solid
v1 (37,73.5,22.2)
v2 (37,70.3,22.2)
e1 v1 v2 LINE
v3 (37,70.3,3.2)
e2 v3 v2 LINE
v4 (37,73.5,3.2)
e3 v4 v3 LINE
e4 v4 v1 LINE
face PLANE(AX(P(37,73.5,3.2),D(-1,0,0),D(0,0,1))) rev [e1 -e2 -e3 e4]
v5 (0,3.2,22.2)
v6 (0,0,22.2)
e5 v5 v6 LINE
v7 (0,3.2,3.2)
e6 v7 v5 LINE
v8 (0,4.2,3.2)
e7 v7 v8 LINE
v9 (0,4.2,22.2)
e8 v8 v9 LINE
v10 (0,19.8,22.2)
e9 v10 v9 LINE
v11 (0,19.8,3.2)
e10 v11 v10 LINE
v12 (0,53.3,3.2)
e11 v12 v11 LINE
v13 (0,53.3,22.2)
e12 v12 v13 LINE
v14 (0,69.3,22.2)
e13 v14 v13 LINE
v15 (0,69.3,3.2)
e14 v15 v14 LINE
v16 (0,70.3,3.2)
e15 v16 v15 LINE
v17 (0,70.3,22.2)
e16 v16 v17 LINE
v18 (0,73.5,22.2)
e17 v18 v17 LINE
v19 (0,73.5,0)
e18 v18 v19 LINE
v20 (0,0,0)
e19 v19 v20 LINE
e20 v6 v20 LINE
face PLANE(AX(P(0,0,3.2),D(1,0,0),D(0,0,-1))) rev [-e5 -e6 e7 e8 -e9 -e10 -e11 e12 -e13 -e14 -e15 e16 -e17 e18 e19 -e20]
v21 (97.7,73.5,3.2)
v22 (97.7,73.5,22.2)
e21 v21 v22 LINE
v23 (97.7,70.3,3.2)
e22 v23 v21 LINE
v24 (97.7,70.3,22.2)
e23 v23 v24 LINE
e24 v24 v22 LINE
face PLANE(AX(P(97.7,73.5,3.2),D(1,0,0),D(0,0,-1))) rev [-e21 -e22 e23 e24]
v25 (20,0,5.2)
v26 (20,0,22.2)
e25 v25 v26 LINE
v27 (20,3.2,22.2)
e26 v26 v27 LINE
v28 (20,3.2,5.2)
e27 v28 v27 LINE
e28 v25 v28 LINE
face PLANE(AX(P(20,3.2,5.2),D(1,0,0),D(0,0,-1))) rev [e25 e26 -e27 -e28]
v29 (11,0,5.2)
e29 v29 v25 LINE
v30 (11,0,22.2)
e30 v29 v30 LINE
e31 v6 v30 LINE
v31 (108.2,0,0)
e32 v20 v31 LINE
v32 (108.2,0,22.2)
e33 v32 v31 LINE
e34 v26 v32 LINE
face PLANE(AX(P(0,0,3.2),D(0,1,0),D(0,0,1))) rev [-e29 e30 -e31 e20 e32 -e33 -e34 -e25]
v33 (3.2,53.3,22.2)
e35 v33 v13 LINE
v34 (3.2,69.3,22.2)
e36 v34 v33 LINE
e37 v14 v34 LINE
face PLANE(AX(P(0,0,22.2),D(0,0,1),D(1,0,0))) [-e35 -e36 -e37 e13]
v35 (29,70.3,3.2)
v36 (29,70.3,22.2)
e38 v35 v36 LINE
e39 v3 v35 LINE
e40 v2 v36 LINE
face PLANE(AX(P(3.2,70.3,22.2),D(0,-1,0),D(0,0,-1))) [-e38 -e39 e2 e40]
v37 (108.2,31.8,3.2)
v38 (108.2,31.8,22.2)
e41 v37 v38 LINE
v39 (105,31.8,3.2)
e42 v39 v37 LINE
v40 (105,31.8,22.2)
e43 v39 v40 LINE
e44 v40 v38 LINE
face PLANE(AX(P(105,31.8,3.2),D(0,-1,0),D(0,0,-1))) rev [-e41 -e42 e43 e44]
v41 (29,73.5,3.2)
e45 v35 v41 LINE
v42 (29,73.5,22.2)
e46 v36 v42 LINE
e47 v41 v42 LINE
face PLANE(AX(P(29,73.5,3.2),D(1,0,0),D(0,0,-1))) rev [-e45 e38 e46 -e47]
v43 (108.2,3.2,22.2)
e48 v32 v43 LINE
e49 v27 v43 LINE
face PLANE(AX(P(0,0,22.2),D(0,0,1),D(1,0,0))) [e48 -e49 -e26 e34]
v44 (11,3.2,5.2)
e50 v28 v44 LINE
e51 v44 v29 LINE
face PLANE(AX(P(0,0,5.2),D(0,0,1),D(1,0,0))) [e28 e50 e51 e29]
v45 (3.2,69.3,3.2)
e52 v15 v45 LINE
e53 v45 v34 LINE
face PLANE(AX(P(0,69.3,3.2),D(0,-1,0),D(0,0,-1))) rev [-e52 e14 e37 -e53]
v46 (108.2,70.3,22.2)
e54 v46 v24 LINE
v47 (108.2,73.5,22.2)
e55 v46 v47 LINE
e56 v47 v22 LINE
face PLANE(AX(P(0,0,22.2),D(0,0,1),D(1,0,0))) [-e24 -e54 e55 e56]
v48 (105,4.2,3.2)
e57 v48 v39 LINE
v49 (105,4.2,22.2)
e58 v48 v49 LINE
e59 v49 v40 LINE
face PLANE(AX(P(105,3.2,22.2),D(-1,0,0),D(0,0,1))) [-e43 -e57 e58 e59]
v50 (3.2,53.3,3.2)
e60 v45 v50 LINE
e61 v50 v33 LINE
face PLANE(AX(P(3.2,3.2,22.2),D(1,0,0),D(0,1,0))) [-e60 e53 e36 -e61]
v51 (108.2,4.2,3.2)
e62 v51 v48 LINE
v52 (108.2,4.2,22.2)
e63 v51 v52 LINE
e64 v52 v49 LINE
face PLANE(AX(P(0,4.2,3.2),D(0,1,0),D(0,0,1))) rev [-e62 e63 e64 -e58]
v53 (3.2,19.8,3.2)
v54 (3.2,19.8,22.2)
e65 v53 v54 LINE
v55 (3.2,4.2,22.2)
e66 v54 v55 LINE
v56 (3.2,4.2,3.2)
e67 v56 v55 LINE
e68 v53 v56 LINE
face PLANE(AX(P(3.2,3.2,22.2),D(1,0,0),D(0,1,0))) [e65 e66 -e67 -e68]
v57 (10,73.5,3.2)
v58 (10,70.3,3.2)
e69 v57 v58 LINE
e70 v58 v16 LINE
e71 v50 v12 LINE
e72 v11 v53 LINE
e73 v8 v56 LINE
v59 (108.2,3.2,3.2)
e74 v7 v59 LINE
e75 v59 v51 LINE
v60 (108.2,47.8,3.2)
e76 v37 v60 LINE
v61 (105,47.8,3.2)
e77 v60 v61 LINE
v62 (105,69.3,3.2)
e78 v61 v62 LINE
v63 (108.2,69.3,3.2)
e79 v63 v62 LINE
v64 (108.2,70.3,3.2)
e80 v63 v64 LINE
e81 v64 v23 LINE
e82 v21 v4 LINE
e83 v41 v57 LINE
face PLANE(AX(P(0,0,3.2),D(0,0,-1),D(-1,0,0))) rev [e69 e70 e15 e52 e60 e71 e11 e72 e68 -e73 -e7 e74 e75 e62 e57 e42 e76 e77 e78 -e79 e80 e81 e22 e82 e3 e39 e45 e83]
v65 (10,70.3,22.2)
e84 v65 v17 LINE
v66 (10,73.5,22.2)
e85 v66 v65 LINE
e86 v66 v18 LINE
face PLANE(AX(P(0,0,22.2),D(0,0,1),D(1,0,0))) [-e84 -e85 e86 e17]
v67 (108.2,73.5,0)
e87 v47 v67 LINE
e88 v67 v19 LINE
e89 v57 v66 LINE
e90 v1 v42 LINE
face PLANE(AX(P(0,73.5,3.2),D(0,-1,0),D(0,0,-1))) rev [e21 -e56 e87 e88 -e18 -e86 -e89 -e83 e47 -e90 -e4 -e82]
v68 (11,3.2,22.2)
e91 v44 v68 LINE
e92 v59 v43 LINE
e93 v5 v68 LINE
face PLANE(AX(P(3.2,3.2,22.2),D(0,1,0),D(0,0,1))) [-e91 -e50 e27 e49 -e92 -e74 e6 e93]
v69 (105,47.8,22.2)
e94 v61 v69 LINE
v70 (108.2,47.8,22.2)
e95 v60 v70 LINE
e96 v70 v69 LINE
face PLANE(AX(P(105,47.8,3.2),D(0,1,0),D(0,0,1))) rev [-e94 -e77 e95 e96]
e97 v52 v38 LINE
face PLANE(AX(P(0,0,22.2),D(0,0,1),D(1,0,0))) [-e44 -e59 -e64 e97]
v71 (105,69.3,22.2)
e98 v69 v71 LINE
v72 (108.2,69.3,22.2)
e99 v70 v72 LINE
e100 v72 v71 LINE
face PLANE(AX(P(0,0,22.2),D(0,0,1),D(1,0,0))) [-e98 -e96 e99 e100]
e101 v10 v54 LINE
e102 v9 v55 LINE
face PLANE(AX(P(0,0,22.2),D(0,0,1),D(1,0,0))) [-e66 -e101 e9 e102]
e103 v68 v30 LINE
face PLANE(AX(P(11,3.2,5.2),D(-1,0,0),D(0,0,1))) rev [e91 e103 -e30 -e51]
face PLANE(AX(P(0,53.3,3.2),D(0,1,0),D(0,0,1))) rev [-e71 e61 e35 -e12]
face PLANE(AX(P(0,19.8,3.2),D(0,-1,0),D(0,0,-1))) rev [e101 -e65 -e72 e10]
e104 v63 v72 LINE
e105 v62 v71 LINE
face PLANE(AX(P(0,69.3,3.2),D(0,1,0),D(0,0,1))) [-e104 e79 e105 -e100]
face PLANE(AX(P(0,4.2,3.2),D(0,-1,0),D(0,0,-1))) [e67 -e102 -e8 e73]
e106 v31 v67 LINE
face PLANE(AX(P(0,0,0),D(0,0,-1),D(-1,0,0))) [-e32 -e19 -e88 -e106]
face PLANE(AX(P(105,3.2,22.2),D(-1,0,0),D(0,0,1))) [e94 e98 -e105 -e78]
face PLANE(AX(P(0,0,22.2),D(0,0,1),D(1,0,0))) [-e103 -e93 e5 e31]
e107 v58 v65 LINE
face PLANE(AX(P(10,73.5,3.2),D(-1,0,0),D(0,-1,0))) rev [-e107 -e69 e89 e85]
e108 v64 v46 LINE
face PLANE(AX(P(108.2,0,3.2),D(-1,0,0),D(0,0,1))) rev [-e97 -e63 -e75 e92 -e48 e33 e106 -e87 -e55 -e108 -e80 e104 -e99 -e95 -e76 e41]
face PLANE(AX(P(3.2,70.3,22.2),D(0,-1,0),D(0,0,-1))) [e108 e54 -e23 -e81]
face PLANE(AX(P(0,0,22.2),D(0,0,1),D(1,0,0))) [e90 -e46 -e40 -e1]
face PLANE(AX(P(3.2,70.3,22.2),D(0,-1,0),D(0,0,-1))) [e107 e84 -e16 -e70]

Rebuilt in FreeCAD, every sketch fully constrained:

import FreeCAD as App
import Part
import Sketcher

V = App.Vector


def add_polygon(sketch, points):
    """Adds a closed chain of lines whose ends are joined by coincident constraints."""
    first, n = sketch.GeometryCount, len(points)
    for a, b in zip(points, points[1:] + points[:1]):
        sketch.addGeometry(Part.LineSegment(App.Vector(*a, 0), App.Vector(*b, 0)), False)
    for i in range(n):
        sketch.addConstraint(Sketcher.Constraint("Coincident", first + i, 2, first + (i + 1) % n, 1))

doc = App.newDocument("Part")
body = doc.addObject("PartDesign::Body", "Body")

# Sketch on XY plane
sketch1 = body.newObject("Sketcher::SketchObject", "Sketch")
sketch1.AttachmentSupport = (doc.getObject("XY_Plane"), [""])
sketch1.MapMode = "FlatFace"
add_polygon(sketch1, [(0, 74), (0, 0), (108, 0), (108, 74)])  # lines 0-3
sketch1.addConstraint(Sketcher.Constraint("Vertical", 0))
sketch1.addConstraint(Sketcher.Constraint("Horizontal", 1))
sketch1.addConstraint(Sketcher.Constraint("Vertical", 2))
sketch1.addConstraint(Sketcher.Constraint("Horizontal", 3))
sketch1.addConstraint(Sketcher.Constraint("Coincident", 0, 2, -1, 1))
sketch1.addConstraint(Sketcher.Constraint("DistanceX", 1, 1, 1, 2, 108.2))
sketch1.addConstraint(Sketcher.Constraint("DistanceY", 0, 2, 0, 1, 73.5))
pad1 = body.newObject("PartDesign::Pad", "Pad")
pad1.Profile = sketch1
pad1.Length = 3.2

# Sketch on XY plane
sketch2 = body.newObject("Sketcher::SketchObject", "Sketch001")
sketch2.AttachmentSupport = (doc.getObject("XY_Plane"), [""])
sketch2.MapMode = "FlatFace"
sketch2.AttachmentOffset = App.Placement(V(0, 0, 3.2), App.Rotation())
add_polygon(sketch2, [(0, 74), (0, 0), (108, 0), (108, 74)])  # lines 0-3
add_polygon(sketch2, [(105, 3), (3, 3), (3, 70), (105, 70)])  # lines 4-7
sketch2.addConstraint(Sketcher.Constraint("Vertical", 0))
sketch2.addConstraint(Sketcher.Constraint("Horizontal", 1))
sketch2.addConstraint(Sketcher.Constraint("Vertical", 2))
sketch2.addConstraint(Sketcher.Constraint("Horizontal", 3))
sketch2.addConstraint(Sketcher.Constraint("Horizontal", 4))
sketch2.addConstraint(Sketcher.Constraint("Vertical", 5))
sketch2.addConstraint(Sketcher.Constraint("Horizontal", 6))
sketch2.addConstraint(Sketcher.Constraint("Vertical", 7))
sketch2.addConstraint(Sketcher.Constraint("Coincident", 0, 2, -1, 1))
sketch2.addConstraint(Sketcher.Constraint("DistanceX", 1, 1, 1, 2, 108.2))
sketch2.addConstraint(Sketcher.Constraint("DistanceX", 4, 2, 4, 1, 101.8))
sketch2.addConstraint(Sketcher.Constraint("DistanceY", 0, 2, 0, 1, 73.5))
sketch2.addConstraint(Sketcher.Constraint("DistanceY", 5, 1, 5, 2, 67.1))
sketch2.addConstraint(Sketcher.Constraint("DistanceX", -1, 1, 6, 2, 105.0))
sketch2.addConstraint(Sketcher.Constraint("DistanceY", -1, 1, 4, 2, 3.2))
pad2 = body.newObject("PartDesign::Pad", "Pad001")
pad2.Profile = sketch2
pad2.Length = 19

# Sketch on XY plane
sketch3 = body.newObject("Sketcher::SketchObject", "Sketch002")
sketch3.AttachmentSupport = (doc.getObject("XY_Plane"), [""])
sketch3.MapMode = "FlatFace"
sketch3.AttachmentOffset = App.Placement(V(0, 0, 22.2), App.Rotation())
add_polygon(sketch3, [(0, 70.3), (0, 69.3), (3.2, 69.3), (3.2, 70.3)])  # lines 0-3
add_polygon(sketch3, [(105, 70.3), (105, 69.3), (108.2, 69.3), (108.2, 70.3)])  # lines 4-7
add_polygon(sketch3, [(105, 4.2), (105, 3.2), (108.2, 3.2), (108.2, 4.2)])  # lines 8-11
add_polygon(sketch3, [(0, 4.2), (0, 3.2), (3.2, 3.2), (3.2, 4.2)])  # lines 12-15
sketch3.addConstraint(Sketcher.Constraint("Vertical", 0))
sketch3.addConstraint(Sketcher.Constraint("Horizontal", 1))
sketch3.addConstraint(Sketcher.Constraint("Vertical", 2))
sketch3.addConstraint(Sketcher.Constraint("Horizontal", 3))
sketch3.addConstraint(Sketcher.Constraint("Vertical", 4))
sketch3.addConstraint(Sketcher.Constraint("Horizontal", 5))
sketch3.addConstraint(Sketcher.Constraint("Vertical", 6))
sketch3.addConstraint(Sketcher.Constraint("Horizontal", 7))
sketch3.addConstraint(Sketcher.Constraint("Vertical", 8))
sketch3.addConstraint(Sketcher.Constraint("Horizontal", 9))
sketch3.addConstraint(Sketcher.Constraint("Vertical", 10))
sketch3.addConstraint(Sketcher.Constraint("Horizontal", 11))
sketch3.addConstraint(Sketcher.Constraint("Vertical", 12))
sketch3.addConstraint(Sketcher.Constraint("Horizontal", 13))
sketch3.addConstraint(Sketcher.Constraint("Vertical", 14))
sketch3.addConstraint(Sketcher.Constraint("Horizontal", 15))
sketch3.addConstraint(Sketcher.Constraint("PointOnObject", 0, 2, -2))
sketch3.addConstraint(Sketcher.Constraint("PointOnObject", 12, 2, -2))
sketch3.addConstraint(Sketcher.Constraint("Horizontal", 1, 2, 4, 2))
sketch3.addConstraint(Sketcher.Constraint("Horizontal", 3, 2, 6, 2))
sketch3.addConstraint(Sketcher.Constraint("Horizontal", 9, 2, 12, 2))
sketch3.addConstraint(Sketcher.Constraint("Horizontal", 11, 2, 14, 2))
sketch3.addConstraint(Sketcher.Constraint("Vertical", 7, 2, 8, 2))
sketch3.addConstraint(Sketcher.Constraint("Vertical", 6, 2, 9, 2))
sketch3.addConstraint(Sketcher.Constraint("Vertical", 2, 2, 13, 2))
sketch3.addConstraint(Sketcher.Constraint("Equal", 3, 5))
sketch3.addConstraint(Sketcher.Constraint("Equal", 6, 8))
sketch3.addConstraint(Sketcher.Constraint("DistanceY", 0, 2, 0, 1, 1.0))
sketch3.addConstraint(Sketcher.Constraint("DistanceX", 1, 1, 1, 2, 3.2))
sketch3.addConstraint(Sketcher.Constraint("DistanceX", -1, 1, 4, 2, 105.0))
sketch3.addConstraint(Sketcher.Constraint("DistanceY", -1, 1, 0, 2, 69.3))
sketch3.addConstraint(Sketcher.Constraint("DistanceY", -1, 1, 8, 2, 3.2))
pocket1 = body.newObject("PartDesign::Pocket", "Pocket")
pocket1.Profile = sketch3
pocket1.Length = 19

# Sketch on XY plane
sketch4 = body.newObject("Sketcher::SketchObject", "Sketch003")
sketch4.AttachmentSupport = (doc.getObject("XY_Plane"), [""])
sketch4.MapMode = "FlatFace"
sketch4.AttachmentOffset = App.Placement(V(0, 0, 22.2), App.Rotation())
add_polygon(sketch4, [(0, 53.3), (0, 19.8), (3.2, 19.8), (3.2, 53.3)])  # lines 0-3
sketch4.addConstraint(Sketcher.Constraint("Vertical", 0))
sketch4.addConstraint(Sketcher.Constraint("Horizontal", 1))
sketch4.addConstraint(Sketcher.Constraint("Vertical", 2))
sketch4.addConstraint(Sketcher.Constraint("Horizontal", 3))
sketch4.addConstraint(Sketcher.Constraint("PointOnObject", 0, 2, -2))
sketch4.addConstraint(Sketcher.Constraint("DistanceX", 1, 1, 1, 2, 3.2))
sketch4.addConstraint(Sketcher.Constraint("DistanceY", 0, 2, 0, 1, 33.5))
sketch4.addConstraint(Sketcher.Constraint("DistanceY", -1, 1, 0, 2, 19.8))
pocket2 = body.newObject("PartDesign::Pocket", "Pocket001")
pocket2.Profile = sketch4
pocket2.Length = 19

# Sketch on XY plane
sketch5 = body.newObject("Sketcher::SketchObject", "Sketch004")
sketch5.AttachmentSupport = (doc.getObject("XY_Plane"), [""])
sketch5.MapMode = "FlatFace"
sketch5.AttachmentOffset = App.Placement(V(0, 0, 22.2), App.Rotation())
add_polygon(sketch5, [(10, 73.5), (10, 70.3), (29, 70.3), (29, 73.5)])  # lines 0-3
add_polygon(sketch5, [(37, 73.5), (37, 70.3), (97.7, 70.3), (97.7, 73.5)])  # lines 4-7
sketch5.addConstraint(Sketcher.Constraint("Vertical", 0))
sketch5.addConstraint(Sketcher.Constraint("Horizontal", 1))
sketch5.addConstraint(Sketcher.Constraint("Vertical", 2))
sketch5.addConstraint(Sketcher.Constraint("Horizontal", 3))
sketch5.addConstraint(Sketcher.Constraint("Vertical", 4))
sketch5.addConstraint(Sketcher.Constraint("Horizontal", 5))
sketch5.addConstraint(Sketcher.Constraint("Vertical", 6))
sketch5.addConstraint(Sketcher.Constraint("Horizontal", 7))
sketch5.addConstraint(Sketcher.Constraint("Horizontal", 1, 2, 4, 2))
sketch5.addConstraint(Sketcher.Constraint("Horizontal", 3, 2, 6, 2))
sketch5.addConstraint(Sketcher.Constraint("DistanceX", 1, 1, 1, 2, 19.0))
sketch5.addConstraint(Sketcher.Constraint("DistanceX", 5, 1, 5, 2, 60.7))
sketch5.addConstraint(Sketcher.Constraint("DistanceY", 0, 2, 0, 1, 3.2))
sketch5.addConstraint(Sketcher.Constraint("DistanceX", -1, 1, 0, 2, 10.0))
sketch5.addConstraint(Sketcher.Constraint("DistanceX", -1, 1, 4, 2, 37.0))
sketch5.addConstraint(Sketcher.Constraint("DistanceY", -1, 1, 0, 2, 70.3))
pocket3 = body.newObject("PartDesign::Pocket", "Pocket002")
pocket3.Profile = sketch5
pocket3.Length = 19

# Sketch on XY plane
sketch6 = body.newObject("Sketcher::SketchObject", "Sketch005")
sketch6.AttachmentSupport = (doc.getObject("XY_Plane"), [""])
sketch6.MapMode = "FlatFace"
sketch6.AttachmentOffset = App.Placement(V(0, 0, 22.2), App.Rotation())
add_polygon(sketch6, [(105, 47.8), (105, 31.8), (108.2, 31.8), (108.2, 47.8)])  # lines 0-3
sketch6.addConstraint(Sketcher.Constraint("Vertical", 0))
sketch6.addConstraint(Sketcher.Constraint("Horizontal", 1))
sketch6.addConstraint(Sketcher.Constraint("Vertical", 2))
sketch6.addConstraint(Sketcher.Constraint("Horizontal", 3))
sketch6.addConstraint(Sketcher.Constraint("DistanceY", 0, 2, 0, 1, 16.0))
sketch6.addConstraint(Sketcher.Constraint("DistanceX", 1, 1, 1, 2, 3.2))
sketch6.addConstraint(Sketcher.Constraint("DistanceX", -1, 1, 0, 2, 105.0))
sketch6.addConstraint(Sketcher.Constraint("DistanceY", -1, 1, 0, 2, 31.8))
pocket4 = body.newObject("PartDesign::Pocket", "Pocket003")
pocket4.Profile = sketch6
pocket4.Length = 19

# Sketch on XY plane
sketch7 = body.newObject("Sketcher::SketchObject", "Sketch006")
sketch7.AttachmentSupport = (doc.getObject("XY_Plane"), [""])
sketch7.MapMode = "FlatFace"
sketch7.AttachmentOffset = App.Placement(V(0, 0, 22.2), App.Rotation())
add_polygon(sketch7, [(11, 3.2), (11, 0), (20, 0), (20, 3.2)])  # lines 0-3
sketch7.addConstraint(Sketcher.Constraint("Vertical", 0))
sketch7.addConstraint(Sketcher.Constraint("Horizontal", 1))
sketch7.addConstraint(Sketcher.Constraint("Vertical", 2))
sketch7.addConstraint(Sketcher.Constraint("Horizontal", 3))
sketch7.addConstraint(Sketcher.Constraint("PointOnObject", 0, 2, -1))
sketch7.addConstraint(Sketcher.Constraint("DistanceX", 1, 1, 1, 2, 9.0))
sketch7.addConstraint(Sketcher.Constraint("DistanceY", 0, 2, 0, 1, 3.2))
sketch7.addConstraint(Sketcher.Constraint("DistanceX", -1, 1, 0, 2, 11.0))
pocket5 = body.newObject("PartDesign::Pocket", "Pocket004")
pocket5.Profile = sketch7
pocket5.Length = 17

doc.recompute()
